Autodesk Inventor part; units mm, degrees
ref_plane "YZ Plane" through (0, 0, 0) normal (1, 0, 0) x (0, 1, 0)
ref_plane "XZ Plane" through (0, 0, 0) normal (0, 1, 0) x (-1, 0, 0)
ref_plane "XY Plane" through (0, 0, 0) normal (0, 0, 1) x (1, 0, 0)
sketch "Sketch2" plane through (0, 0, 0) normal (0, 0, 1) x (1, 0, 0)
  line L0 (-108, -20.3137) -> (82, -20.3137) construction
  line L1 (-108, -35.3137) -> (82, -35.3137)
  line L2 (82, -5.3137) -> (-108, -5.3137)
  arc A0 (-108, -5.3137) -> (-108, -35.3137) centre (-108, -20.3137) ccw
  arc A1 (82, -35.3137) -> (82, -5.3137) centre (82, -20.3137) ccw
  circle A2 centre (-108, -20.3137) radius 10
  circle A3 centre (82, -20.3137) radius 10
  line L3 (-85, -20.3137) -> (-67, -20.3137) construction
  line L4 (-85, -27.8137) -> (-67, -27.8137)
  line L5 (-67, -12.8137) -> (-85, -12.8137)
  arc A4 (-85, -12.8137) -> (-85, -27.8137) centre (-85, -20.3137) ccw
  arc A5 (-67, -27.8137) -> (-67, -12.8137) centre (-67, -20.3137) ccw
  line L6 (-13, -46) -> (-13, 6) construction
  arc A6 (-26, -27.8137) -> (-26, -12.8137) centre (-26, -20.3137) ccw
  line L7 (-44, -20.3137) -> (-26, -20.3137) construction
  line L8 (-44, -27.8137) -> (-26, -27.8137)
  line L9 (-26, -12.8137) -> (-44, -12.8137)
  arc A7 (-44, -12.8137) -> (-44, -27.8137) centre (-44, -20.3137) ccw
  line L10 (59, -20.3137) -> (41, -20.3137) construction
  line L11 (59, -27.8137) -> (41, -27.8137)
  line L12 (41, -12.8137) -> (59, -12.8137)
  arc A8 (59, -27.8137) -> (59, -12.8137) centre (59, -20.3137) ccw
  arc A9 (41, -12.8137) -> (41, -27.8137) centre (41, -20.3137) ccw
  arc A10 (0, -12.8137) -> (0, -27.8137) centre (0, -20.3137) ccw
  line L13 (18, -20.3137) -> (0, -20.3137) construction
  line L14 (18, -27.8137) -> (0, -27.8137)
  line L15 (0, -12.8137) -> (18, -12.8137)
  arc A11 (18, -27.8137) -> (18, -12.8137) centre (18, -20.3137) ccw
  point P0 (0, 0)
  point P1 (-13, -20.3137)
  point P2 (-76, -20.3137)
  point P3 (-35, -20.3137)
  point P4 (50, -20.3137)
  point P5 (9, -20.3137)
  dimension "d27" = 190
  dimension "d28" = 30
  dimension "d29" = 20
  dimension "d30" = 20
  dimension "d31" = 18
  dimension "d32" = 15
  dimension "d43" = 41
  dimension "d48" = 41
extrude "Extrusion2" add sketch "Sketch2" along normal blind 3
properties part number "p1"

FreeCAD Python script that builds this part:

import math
import FreeCAD as App
import Part
import Sketcher
from FreeCAD import Vector
Q = App.Units.Quantity

doc = App.newDocument("Part")
body = doc.addObject("PartDesign::Body", "Body")

# Sketch on XY plane
sketch1 = body.newObject("Sketcher::SketchObject", "Sketch")
sketch1.AttachmentSupport = (doc.getObject("XY_Plane"), [""])
sketch1.MapMode = "FlatFace"
sketch1.addGeometry([
    Part.ArcOfCircle(Part.Circle(Vector(-108, -20.3137, 0), Vector(0, 0, 1), 15), math.radians(90), math.radians(270)),  # 0
    Part.LineSegment(Vector(-108, -35.3137, 0), Vector(82, -35.3137, 0)),  # 1
    Part.ArcOfCircle(Part.Circle(Vector(82, -20.3137, 0), Vector(0, 0, 1), 15), math.radians(-90), math.radians(90)),  # 2
    Part.LineSegment(Vector(82, -5.3137, 0), Vector(-108, -5.3137, 0)),  # 3
    Part.Circle(Vector(-108, -20.3137, 0), Vector(0, 0, 1), 10),  # 4
    Part.LineSegment(Vector(-67, -27.8137, 0), Vector(-85, -27.8137, 0)),  # 5
    Part.ArcOfCircle(Part.Circle(Vector(-85, -20.3137, 0), Vector(0, 0, 1), 7.5), math.radians(90), math.radians(270)),  # 6
    Part.LineSegment(Vector(-85, -12.8137, 0), Vector(-67, -12.8137, 0)),  # 7
    Part.ArcOfCircle(Part.Circle(Vector(-67, -20.3137, 0), Vector(0, 0, 1), 7.5), math.radians(-90), math.radians(90)),  # 8
    Part.ArcOfCircle(Part.Circle(Vector(-26, -20.3137, 0), Vector(0, 0, 1), 7.5), math.radians(-90), math.radians(90)),  # 9
    Part.LineSegment(Vector(-26, -27.8137, 0), Vector(-44, -27.8137, 0)),  # 10
    Part.ArcOfCircle(Part.Circle(Vector(-44, -20.3137, 0), Vector(0, 0, 1), 7.5), math.radians(90), math.radians(270)),  # 11
    Part.LineSegment(Vector(-44, -12.8137, 0), Vector(-26, -12.8137, 0)),  # 12
    Part.ArcOfCircle(Part.Circle(Vector(0, -20.3137, 0), Vector(0, 0, 1), 7.5), math.radians(90), math.radians(270)),  # 13
    Part.LineSegment(Vector(0, -12.8137, 0), Vector(18, -12.8137, 0)),  # 14
    Part.ArcOfCircle(Part.Circle(Vector(18, -20.3137, 0), Vector(0, 0, 1), 7.5), math.radians(-90), math.radians(90)),  # 15
    Part.LineSegment(Vector(18, -27.8137, 0), Vector(0, -27.8137, 0)),  # 16
    Part.ArcOfCircle(Part.Circle(Vector(59, -20.3137, 0), Vector(0, 0, 1), 7.5), math.radians(-90), math.radians(90)),  # 17
    Part.LineSegment(Vector(59, -27.8137, 0), Vector(41, -27.8137, 0)),  # 18
    Part.ArcOfCircle(Part.Circle(Vector(41, -20.3137, 0), Vector(0, 0, 1), 7.5), math.radians(90), math.radians(270)),  # 19
    Part.LineSegment(Vector(41, -12.8137, 0), Vector(59, -12.8137, 0)),  # 20
    Part.Circle(Vector(82, -20.3137, 0), Vector(0, 0, 1), 10),  # 21
], False)
sketch1.addConstraint([
    Sketcher.Constraint("Tangent", 0, 2, 1, 1),
    Sketcher.Constraint("Tangent", 1, 2, 2, 1),
    Sketcher.Constraint("Tangent", 2, 2, 3, 1),
    Sketcher.Constraint("Tangent", 3, 2, 0, 1),
    Sketcher.Constraint("Tangent", 5, 2, 6, 2),
    Sketcher.Constraint("Tangent", 6, 1, 7, 1),
    Sketcher.Constraint("Tangent", 7, 2, 8, 2),
    Sketcher.Constraint("Tangent", 8, 1, 5, 1),
    Sketcher.Constraint("Tangent", 9, 1, 10, 1),
    Sketcher.Constraint("Tangent", 10, 2, 11, 2),
    Sketcher.Constraint("Tangent", 11, 1, 12, 1),
    Sketcher.Constraint("Tangent", 12, 2, 9, 2),
    Sketcher.Constraint("Tangent", 13, 1, 14, 1),
    Sketcher.Constraint("Tangent", 14, 2, 15, 2),
    Sketcher.Constraint("Tangent", 15, 1, 16, 1),
    Sketcher.Constraint("Tangent", 16, 2, 13, 2),
    Sketcher.Constraint("Tangent", 17, 1, 18, 1),
    Sketcher.Constraint("Tangent", 18, 2, 19, 2),
    Sketcher.Constraint("Tangent", 19, 1, 20, 1),
    Sketcher.Constraint("Tangent", 20, 2, 17, 2),
    Sketcher.Constraint("Horizontal", 1),
    Sketcher.Constraint("Horizontal", 3),
    Sketcher.Constraint("Horizontal", 5),
    Sketcher.Constraint("Horizontal", 7),
    Sketcher.Constraint("Horizontal", 10),
    Sketcher.Constraint("Horizontal", 12),
    Sketcher.Constraint("Horizontal", 14),
    Sketcher.Constraint("Horizontal", 16),
    Sketcher.Constraint("Horizontal", 18),
    Sketcher.Constraint("Horizontal", 20),
    Sketcher.Constraint("Coincident", 4, 3, 0, 3),
    Sketcher.Constraint("Coincident", 21, 3, 2, 3),
    Sketcher.Constraint("Equal", 8, 9),
    Sketcher.Constraint("Equal", 11, 13),
    Sketcher.Constraint("Equal", 15, 17),
    Sketcher.Constraint("Equal", 4, 21),
    Sketcher.Constraint("PointOnObject", 13, 3, -2),
    Sketcher.Constraint("Horizontal", 4, 3, 6, 3),
    Sketcher.Constraint("Horizontal", 8, 3, 9, 3),
    Sketcher.Constraint("Horizontal", 11, 3, 13, 3),
    Sketcher.Constraint("Horizontal", 15, 3, 17, 3),
    Sketcher.Constraint("Equal", 7, 10),
    Sketcher.Constraint("Equal", 12, 14),
    Sketcher.Constraint("Equal", 16, 18),
    Sketcher.Constraint("Diameter", 4, Q("20 mm")),
    Sketcher.Constraint("Radius", 0, Q("15 mm")),
    Sketcher.Constraint("Radius", 6, Q("7.5 mm")),
    Sketcher.Constraint("DistanceX", 1, 1, 1, 2, Q("190 mm")),
    Sketcher.Constraint("DistanceX", 5, 2, 5, 1, Q("18 mm")),
    Sketcher.Constraint("DistanceX", -1, 1, 19, 3, Q("41 mm")),
    Sketcher.Constraint("DistanceX", 0, 3, 8, 3, Q("41 mm")),
    Sketcher.Constraint("DistanceX", 8, 3, 9, 3, Q("41 mm")),
    Sketcher.Constraint("DistanceX", 19, 3, 2, 3, Q("41 mm")),
    Sketcher.Constraint("DistanceY", 0, 3, -1, 1, Q("20.3137 mm")),
])
pad1 = body.newObject("PartDesign::Pad", "Pad")
pad1.Profile = sketch1
pad1.Length = 3

doc.recompute()
